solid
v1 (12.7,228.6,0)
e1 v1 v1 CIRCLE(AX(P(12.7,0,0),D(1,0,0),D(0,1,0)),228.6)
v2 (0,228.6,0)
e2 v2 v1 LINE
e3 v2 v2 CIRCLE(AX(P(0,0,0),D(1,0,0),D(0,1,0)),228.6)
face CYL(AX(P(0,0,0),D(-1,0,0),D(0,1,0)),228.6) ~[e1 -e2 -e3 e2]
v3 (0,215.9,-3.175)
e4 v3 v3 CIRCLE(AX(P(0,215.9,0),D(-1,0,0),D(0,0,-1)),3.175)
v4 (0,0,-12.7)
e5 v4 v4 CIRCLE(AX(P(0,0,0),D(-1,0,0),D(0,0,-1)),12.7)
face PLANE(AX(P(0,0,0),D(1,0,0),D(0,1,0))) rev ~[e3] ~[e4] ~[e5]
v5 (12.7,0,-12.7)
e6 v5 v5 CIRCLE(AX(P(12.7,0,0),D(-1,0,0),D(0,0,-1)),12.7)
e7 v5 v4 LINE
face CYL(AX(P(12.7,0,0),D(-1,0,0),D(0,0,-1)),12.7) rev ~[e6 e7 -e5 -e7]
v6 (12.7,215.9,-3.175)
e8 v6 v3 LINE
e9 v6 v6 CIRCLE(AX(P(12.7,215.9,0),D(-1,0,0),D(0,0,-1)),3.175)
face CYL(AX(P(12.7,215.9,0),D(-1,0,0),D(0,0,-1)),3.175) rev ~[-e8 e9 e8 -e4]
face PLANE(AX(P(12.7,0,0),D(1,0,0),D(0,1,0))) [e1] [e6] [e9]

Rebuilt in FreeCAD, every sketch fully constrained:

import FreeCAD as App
import Part
import Sketcher
Q = App.Units.Quantity

doc = App.newDocument("Part")
body = doc.addObject("PartDesign::Body", "Body")

sketch1 = doc.addObject("Sketcher::SketchObject", "Sketch")
body.addObject(sketch1)
sketch1.AttachmentSupport = (doc.YZ_Plane, [""])
sketch1.MapMode = "FlatFace"
sketch1.addGeometry(Part.Circle(App.Vector(0, 0, 0), App.Vector(0, 0, 1), 229), False)
sketch1.addConstraint([
    Sketcher.Constraint("Coincident", 0, 3, -1, 1),
    Sketcher.Constraint("Diameter", 0, Q("18 in")),
])
pad1 = doc.addObject("PartDesign::Pad", "Pad")
body.addObject(pad1)
pad1.Profile = sketch1
pad1.Length = Q("0.5 in")

sketch2 = doc.addObject("Sketcher::SketchObject", "Sketch001")
body.addObject(sketch2)
sketch2.AttachmentSupport = (doc.YZ_Plane, [""])
sketch2.MapMode = "FlatFace"
sketch2.AttachmentOffset = App.Placement(App.Vector(0, 0, 0.5 * 25.4), App.Rotation())
sketch2.addGeometry(Part.Circle(App.Vector(0, 0, 0), App.Vector(0, 0, 1), 13), False)
sketch2.addConstraint([
    Sketcher.Constraint("Coincident", 0, 3, -1, 1),
    Sketcher.Constraint("Diameter", 0, Q("1 in")),
])
doc.recompute()
hole = doc.addObject("PartDesign::Hole", "Hole")
body.addObject(hole)
hole.Profile = sketch2
hole.ThreadType = "None"
hole.Diameter = Q("1 in")
hole.DepthType = "ThroughAll"

sketch3 = doc.addObject("Sketcher::SketchObject", "Sketch002")
body.addObject(sketch3)
sketch3.AttachmentSupport = (doc.YZ_Plane, [""])
sketch3.MapMode = "FlatFace"
sketch3.AttachmentOffset = App.Placement(App.Vector(0, 0, 0.5 * 25.4), App.Rotation())
sketch3.addGeometry(Part.Circle(App.Vector(215.9, 0, 0), App.Vector(0, 0, 1), 3.2), False)
sketch3.addConstraint([
    Sketcher.Constraint("PointOnObject", 0, 3, -1),
    Sketcher.Constraint("Diameter", 0, Q("0.25 in")),
    Sketcher.Constraint("DistanceX", -1, 1, 0, 3, Q("8.5 in")),
])
doc.recompute()
hole2 = doc.addObject("PartDesign::Hole", "Hole001")
body.addObject(hole2)
hole2.Profile = sketch3
hole2.ThreadType = "None"
hole2.Diameter = Q("0.25 in")
hole2.DepthType = "ThroughAll"

doc.recompute()
